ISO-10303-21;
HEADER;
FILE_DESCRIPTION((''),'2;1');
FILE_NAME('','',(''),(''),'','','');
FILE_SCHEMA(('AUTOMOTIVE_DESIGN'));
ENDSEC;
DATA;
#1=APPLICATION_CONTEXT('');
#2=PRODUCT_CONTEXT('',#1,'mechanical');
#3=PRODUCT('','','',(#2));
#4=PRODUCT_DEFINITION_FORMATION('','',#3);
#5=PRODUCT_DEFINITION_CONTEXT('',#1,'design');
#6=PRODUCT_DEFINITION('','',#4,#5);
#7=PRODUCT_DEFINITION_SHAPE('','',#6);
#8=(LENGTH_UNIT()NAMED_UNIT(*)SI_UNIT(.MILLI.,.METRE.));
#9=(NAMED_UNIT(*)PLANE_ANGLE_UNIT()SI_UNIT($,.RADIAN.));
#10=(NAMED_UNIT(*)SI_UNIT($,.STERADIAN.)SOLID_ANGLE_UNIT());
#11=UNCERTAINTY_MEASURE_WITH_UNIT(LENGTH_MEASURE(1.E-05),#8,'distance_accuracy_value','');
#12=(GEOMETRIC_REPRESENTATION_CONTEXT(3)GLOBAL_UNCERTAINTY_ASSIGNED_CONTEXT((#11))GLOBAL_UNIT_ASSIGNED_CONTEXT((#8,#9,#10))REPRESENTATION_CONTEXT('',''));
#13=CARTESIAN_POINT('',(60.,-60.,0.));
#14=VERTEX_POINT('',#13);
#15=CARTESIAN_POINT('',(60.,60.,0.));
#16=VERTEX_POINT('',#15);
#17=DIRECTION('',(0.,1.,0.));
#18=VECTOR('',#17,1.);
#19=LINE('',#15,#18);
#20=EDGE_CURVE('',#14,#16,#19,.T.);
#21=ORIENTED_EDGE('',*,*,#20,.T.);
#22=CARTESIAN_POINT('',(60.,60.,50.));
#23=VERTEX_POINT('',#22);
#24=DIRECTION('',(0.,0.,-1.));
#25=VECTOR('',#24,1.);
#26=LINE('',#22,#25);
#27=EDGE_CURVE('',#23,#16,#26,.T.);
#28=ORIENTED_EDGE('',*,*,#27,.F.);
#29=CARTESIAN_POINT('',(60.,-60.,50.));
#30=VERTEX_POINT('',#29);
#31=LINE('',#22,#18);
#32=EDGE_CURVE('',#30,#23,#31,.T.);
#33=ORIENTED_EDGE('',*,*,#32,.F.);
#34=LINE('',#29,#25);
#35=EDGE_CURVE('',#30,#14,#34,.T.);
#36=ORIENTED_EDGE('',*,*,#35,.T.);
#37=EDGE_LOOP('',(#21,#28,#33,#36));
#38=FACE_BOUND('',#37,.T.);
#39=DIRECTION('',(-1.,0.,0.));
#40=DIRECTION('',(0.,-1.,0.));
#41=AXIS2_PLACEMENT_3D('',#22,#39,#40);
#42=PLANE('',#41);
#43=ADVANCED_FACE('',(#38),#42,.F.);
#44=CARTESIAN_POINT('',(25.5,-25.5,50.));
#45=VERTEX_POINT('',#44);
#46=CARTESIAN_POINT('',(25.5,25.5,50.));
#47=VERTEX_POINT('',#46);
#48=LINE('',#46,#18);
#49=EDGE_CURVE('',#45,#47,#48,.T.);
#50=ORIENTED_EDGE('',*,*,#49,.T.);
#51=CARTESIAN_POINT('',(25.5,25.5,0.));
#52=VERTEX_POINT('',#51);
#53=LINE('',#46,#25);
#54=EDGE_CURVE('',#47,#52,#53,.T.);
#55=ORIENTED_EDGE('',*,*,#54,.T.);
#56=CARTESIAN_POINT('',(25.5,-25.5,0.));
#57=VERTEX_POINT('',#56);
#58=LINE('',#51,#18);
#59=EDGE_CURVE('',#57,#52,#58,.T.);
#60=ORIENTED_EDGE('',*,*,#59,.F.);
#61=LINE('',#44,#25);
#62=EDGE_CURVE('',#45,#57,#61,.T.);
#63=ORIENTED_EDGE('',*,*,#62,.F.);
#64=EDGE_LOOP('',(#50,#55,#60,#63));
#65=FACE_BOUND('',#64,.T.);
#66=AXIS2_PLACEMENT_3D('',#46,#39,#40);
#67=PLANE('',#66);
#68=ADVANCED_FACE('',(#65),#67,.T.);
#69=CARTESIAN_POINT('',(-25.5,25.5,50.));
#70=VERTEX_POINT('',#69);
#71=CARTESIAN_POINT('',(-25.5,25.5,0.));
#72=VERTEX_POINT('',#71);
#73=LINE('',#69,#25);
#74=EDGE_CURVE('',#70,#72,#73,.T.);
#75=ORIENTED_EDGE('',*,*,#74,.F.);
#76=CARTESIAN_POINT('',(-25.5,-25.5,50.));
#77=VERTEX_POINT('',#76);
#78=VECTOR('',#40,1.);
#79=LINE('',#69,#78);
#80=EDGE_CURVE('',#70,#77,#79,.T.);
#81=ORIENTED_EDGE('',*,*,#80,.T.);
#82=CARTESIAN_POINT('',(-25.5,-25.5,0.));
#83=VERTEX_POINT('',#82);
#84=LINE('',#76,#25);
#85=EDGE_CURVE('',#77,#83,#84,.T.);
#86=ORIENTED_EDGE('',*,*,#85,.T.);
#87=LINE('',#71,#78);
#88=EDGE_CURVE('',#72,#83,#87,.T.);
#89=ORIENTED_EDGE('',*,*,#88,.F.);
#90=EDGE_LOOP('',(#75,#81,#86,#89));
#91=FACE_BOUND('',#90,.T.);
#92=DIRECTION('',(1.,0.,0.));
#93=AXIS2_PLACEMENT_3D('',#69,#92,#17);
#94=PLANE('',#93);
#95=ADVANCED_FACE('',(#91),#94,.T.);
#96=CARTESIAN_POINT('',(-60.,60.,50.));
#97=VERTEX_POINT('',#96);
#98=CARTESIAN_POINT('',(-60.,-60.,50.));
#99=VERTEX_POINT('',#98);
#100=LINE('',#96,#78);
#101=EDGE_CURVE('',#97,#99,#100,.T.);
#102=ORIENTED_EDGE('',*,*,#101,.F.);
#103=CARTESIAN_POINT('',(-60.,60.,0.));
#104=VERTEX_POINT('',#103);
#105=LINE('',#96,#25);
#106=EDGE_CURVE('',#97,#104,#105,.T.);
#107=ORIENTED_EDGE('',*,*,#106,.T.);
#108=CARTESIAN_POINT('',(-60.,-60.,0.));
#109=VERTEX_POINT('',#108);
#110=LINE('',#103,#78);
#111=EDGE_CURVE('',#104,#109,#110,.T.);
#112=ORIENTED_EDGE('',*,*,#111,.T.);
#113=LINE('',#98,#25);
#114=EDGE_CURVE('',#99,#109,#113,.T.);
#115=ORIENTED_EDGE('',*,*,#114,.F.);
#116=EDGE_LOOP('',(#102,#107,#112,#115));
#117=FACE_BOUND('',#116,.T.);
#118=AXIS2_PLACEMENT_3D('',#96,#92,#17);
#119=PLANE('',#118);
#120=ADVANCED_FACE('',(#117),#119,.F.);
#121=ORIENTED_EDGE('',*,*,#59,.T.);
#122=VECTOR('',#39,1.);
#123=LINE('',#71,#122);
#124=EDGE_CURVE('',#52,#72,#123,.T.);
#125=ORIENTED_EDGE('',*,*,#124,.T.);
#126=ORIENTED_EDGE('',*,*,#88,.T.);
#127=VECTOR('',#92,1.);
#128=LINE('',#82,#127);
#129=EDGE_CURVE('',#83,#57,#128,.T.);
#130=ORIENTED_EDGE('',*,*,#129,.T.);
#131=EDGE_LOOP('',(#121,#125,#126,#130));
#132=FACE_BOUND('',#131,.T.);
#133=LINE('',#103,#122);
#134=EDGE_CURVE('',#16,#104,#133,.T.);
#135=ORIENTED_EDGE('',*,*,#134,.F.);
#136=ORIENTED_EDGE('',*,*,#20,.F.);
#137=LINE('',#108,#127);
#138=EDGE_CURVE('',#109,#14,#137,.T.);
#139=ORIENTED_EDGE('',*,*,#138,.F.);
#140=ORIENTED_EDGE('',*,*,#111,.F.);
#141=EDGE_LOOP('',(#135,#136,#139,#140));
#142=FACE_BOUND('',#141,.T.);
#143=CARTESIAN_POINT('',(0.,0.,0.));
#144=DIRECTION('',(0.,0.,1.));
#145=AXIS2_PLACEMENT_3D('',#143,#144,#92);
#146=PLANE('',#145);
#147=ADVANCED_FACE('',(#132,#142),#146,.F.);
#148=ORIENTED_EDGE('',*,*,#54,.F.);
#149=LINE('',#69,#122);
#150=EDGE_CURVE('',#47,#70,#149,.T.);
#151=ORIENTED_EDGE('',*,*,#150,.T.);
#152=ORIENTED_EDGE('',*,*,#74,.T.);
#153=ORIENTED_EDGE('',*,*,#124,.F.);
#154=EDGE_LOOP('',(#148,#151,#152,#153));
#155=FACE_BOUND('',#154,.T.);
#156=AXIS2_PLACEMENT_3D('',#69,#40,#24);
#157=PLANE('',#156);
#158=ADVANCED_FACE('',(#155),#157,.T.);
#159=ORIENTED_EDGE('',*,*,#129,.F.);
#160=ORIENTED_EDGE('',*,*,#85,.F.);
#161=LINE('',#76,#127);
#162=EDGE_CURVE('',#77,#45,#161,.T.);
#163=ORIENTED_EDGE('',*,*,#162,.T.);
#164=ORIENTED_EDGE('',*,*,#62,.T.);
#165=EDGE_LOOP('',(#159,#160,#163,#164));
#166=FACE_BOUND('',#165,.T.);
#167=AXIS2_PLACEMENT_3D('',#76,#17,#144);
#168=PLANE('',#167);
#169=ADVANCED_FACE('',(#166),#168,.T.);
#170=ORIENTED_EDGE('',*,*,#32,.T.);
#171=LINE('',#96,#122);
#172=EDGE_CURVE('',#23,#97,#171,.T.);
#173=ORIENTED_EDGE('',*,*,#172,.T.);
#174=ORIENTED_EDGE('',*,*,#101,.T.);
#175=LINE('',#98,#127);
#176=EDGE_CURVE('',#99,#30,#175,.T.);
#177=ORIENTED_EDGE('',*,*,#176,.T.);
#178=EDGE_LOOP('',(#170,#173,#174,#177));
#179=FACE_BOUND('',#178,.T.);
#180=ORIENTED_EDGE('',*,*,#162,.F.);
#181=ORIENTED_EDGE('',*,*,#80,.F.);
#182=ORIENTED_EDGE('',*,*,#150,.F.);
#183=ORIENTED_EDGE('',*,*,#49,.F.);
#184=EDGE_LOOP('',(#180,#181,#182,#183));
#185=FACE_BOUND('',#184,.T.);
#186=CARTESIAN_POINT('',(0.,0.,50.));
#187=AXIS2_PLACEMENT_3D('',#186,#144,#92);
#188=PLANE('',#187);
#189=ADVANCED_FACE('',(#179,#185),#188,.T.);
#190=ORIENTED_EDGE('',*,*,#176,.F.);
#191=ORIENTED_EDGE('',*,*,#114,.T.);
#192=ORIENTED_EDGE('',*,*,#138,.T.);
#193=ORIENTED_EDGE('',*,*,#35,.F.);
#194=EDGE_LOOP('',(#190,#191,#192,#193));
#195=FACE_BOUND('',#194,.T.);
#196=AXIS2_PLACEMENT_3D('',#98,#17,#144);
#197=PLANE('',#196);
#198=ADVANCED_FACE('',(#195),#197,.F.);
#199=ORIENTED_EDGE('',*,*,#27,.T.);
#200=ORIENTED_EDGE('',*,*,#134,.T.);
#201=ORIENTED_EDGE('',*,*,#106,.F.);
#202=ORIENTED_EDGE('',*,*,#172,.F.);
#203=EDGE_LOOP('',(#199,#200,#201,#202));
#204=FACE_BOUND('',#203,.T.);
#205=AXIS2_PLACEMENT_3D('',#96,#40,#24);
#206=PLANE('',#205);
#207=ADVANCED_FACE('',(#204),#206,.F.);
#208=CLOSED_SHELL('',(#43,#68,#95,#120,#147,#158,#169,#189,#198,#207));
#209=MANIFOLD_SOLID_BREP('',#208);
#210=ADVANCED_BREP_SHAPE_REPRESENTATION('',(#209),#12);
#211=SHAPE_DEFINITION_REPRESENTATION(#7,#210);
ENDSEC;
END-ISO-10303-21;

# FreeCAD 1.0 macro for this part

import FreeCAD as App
import Part
import Sketcher

V = App.Vector


def add_polygon(sketch, points):
    """Adds a closed chain of lines whose ends are joined by coincident constraints."""
    first, n = sketch.GeometryCount, len(points)
    for a, b in zip(points, points[1:] + points[:1]):
        sketch.addGeometry(Part.LineSegment(App.Vector(*a, 0), App.Vector(*b, 0)), False)
    for i in range(n):
        sketch.addConstraint(Sketcher.Constraint("Coincident", first + i, 2, first + (i + 1) % n, 1))

doc = App.newDocument("Part")
body = doc.addObject("PartDesign::Body", "Body")

# Sketch on XY plane
sketch1 = body.newObject("Sketcher::SketchObject", "Sketch")
sketch1.AttachmentSupport = (doc.getObject("XY_Plane"), [""])
sketch1.MapMode = "FlatFace"
add_polygon(sketch1, [(-60, 60), (-60, -60), (60, -60), (60, 60)])  # lines 0-3
add_polygon(sketch1, [(25.5, -25.5), (-25.5, -25.5), (-25.5, 25.5), (25.5, 25.5)])  # lines 4-7
sketch1.addConstraint(Sketcher.Constraint("Vertical", 0))
sketch1.addConstraint(Sketcher.Constraint("Horizontal", 1))
sketch1.addConstraint(Sketcher.Constraint("Vertical", 2))
sketch1.addConstraint(Sketcher.Constraint("Horizontal", 3))
sketch1.addConstraint(Sketcher.Constraint("Horizontal", 4))
sketch1.addConstraint(Sketcher.Constraint("Vertical", 5))
sketch1.addConstraint(Sketcher.Constraint("Horizontal", 6))
sketch1.addConstraint(Sketcher.Constraint("Vertical", 7))
sketch1.addConstraint(Sketcher.Constraint("Symmetric", 0, 2, 2, 2, -1, 1))
sketch1.addConstraint(Sketcher.Constraint("Symmetric", 4, 2, 6, 2, -1, 1))
sketch1.addConstraint(Sketcher.Constraint("Equal", 3, 0))
sketch1.addConstraint(Sketcher.Constraint("Equal", 6, 5))
sketch1.addConstraint(Sketcher.Constraint("DistanceX", 1, 1, 1, 2, 120.0))
sketch1.addConstraint(Sketcher.Constraint("DistanceX", 4, 2, 4, 1, 51.0))
pad1 = body.newObject("PartDesign::Pad", "Pad")
pad1.Profile = sketch1
pad1.Length = 50

doc.recompute()
